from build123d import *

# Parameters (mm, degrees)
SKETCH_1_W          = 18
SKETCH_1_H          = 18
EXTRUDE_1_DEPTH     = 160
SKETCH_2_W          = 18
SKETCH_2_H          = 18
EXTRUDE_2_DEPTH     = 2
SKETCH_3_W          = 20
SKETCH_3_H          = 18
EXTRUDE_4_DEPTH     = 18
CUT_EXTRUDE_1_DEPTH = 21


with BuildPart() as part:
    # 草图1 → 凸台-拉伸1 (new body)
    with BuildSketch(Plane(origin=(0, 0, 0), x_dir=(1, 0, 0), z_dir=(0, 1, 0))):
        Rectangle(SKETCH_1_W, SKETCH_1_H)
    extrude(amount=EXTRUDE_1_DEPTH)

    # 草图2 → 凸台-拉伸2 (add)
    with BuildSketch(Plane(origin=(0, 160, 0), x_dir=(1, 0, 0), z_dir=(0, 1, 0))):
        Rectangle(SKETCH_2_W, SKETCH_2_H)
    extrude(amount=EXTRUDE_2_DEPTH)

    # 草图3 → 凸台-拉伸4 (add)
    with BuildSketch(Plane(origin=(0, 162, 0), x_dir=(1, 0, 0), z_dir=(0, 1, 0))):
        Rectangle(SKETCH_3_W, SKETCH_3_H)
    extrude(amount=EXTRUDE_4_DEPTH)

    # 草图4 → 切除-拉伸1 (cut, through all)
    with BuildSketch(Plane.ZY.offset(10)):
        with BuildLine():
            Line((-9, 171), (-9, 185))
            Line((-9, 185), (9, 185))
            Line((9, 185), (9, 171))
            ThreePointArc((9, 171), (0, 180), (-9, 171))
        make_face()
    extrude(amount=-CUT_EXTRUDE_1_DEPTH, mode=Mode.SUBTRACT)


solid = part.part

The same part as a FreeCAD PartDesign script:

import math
import FreeCAD as App
import Part
import Sketcher


def add_polygon(sketch, points):
    """Adds a closed chain of lines whose ends are joined by coincident constraints."""
    first, n = sketch.GeometryCount, len(points)
    for a, b in zip(points, points[1:] + points[:1]):
        sketch.addGeometry(Part.LineSegment(App.Vector(*a, 0), App.Vector(*b, 0)), False)
    for i in range(n):
        sketch.addConstraint(Sketcher.Constraint("Coincident", first + i, 2, first + (i + 1) % n, 1))

doc = App.newDocument("Part")
body = doc.addObject("PartDesign::Body", "Body")

# Sketch on XZ plane
sketch1 = body.newObject("Sketcher::SketchObject", "Sketch")
sketch1.AttachmentSupport = (doc.getObject("XZ_Plane"), [""])
sketch1.MapMode = "FlatFace"
add_polygon(sketch1, [(-9, -9), (-9, 9), (9, 9), (9, -9)])  # lines 0-3
sketch1.addConstraint([
    Sketcher.Constraint("Vertical", 0),
    Sketcher.Constraint("Horizontal", 1),
    Sketcher.Constraint("Vertical", 2),
    Sketcher.Constraint("Horizontal", 3),
    Sketcher.Constraint("Symmetric", 0, 2, 2, 2, -1, 1),
    Sketcher.Constraint("Equal", 3, 0),
    Sketcher.Constraint("DistanceX", 1, 1, 1, 2, 18.0),
])
pad1 = body.newObject("PartDesign::Pad", "Pad")
pad1.Profile = sketch1
pad1.Length = 160
pad1.Reversed = True

# Sketch on XZ plane
sketch2 = body.newObject("Sketcher::SketchObject", "Sketch001")
sketch2.AttachmentSupport = (doc.getObject("XZ_Plane"), [""])
sketch2.MapMode = "FlatFace"
sketch2.AttachmentOffset = App.Placement(App.Vector(0, 0, -160), App.Rotation())
add_polygon(sketch2, [(-9, -9), (-9, 9), (9, 9), (9, -9)])  # lines 0-3
sketch2.addConstraint([
    Sketcher.Constraint("Vertical", 0),
    Sketcher.Constraint("Horizontal", 1),
    Sketcher.Constraint("Vertical", 2),
    Sketcher.Constraint("Horizontal", 3),
    Sketcher.Constraint("Symmetric", 0, 2, 2, 2, -1, 1),
    Sketcher.Constraint("Equal", 3, 0),
    Sketcher.Constraint("DistanceX", 1, 1, 1, 2, 18.0),
])
pad2 = body.newObject("PartDesign::Pad", "Pad001")
pad2.Profile = sketch2
pad2.Length = 2
pad2.Reversed = True

# Sketch on XZ plane
sketch3 = body.newObject("Sketcher::SketchObject", "Sketch002")
sketch3.AttachmentSupport = (doc.getObject("XZ_Plane"), [""])
sketch3.MapMode = "FlatFace"
sketch3.AttachmentOffset = App.Placement(App.Vector(0, 0, -162), App.Rotation())
add_polygon(sketch3, [(-10, -9), (-10, 9), (10, 9), (10, -9)])  # lines 0-3
sketch3.addConstraint([
    Sketcher.Constraint("Vertical", 0),
    Sketcher.Constraint("Horizontal", 1),
    Sketcher.Constraint("Vertical", 2),
    Sketcher.Constraint("Horizontal", 3),
    Sketcher.Constraint("Symmetric", 0, 2, 2, 2, -1, 1),
    Sketcher.Constraint("DistanceX", 1, 1, 1, 2, 20.0),
    Sketcher.Constraint("DistanceY", 0, 1, 0, 2, 18.0),
])
pad3 = body.newObject("PartDesign::Pad", "Pad002")
pad3.Profile = sketch3
pad3.Length = 18
pad3.Reversed = True

# Sketch on YZ plane
sketch4 = body.newObject("Sketcher::SketchObject", "Sketch003")
sketch4.AttachmentSupport = (doc.getObject("YZ_Plane"), [""])
sketch4.MapMode = "FlatFace"
sketch4.AttachmentOffset = App.Placement(App.Vector(0, 0, -10), App.Rotation())
sketch4.addGeometry([
    Part.LineSegment(App.Vector(185, -9, 0), App.Vector(171, -9, 0)),
    Part.ArcOfCircle(Part.Circle(App.Vector(171, 0, 0), App.Vector(0, 0, 1), 9), math.radians(-90), math.radians(90)),
    Part.LineSegment(App.Vector(171, 9, 0), App.Vector(185, 9, 0)),
    Part.LineSegment(App.Vector(185, 9, 0), App.Vector(185, -9, 0)),
], False)
sketch4.addConstraint([
    Sketcher.Constraint("Tangent", 0, 2, 1, 1),
    Sketcher.Constraint("Tangent", 1, 2, 2, 1),
    Sketcher.Constraint("Coincident", 2, 2, 3, 1),
    Sketcher.Constraint("Coincident", 3, 2, 0, 1),
    Sketcher.Constraint("Horizontal", 0),
    Sketcher.Constraint("Horizontal", 2),
    Sketcher.Constraint("Vertical", 3),
    Sketcher.Constraint("PointOnObject", 1, 3, -1),
    Sketcher.Constraint("Radius", 1, 9.0),
    Sketcher.Constraint("DistanceX", 0, 2, 0, 1, 14.0),
    Sketcher.Constraint("DistanceX", -1, 1, 1, 3, 171.0),
])
pocket1 = body.newObject("PartDesign::Pocket", "Pocket")
pocket1.Profile = sketch4
pocket1.Type = "ThroughAll"
pocket1.Reversed = True

doc.recompute()
